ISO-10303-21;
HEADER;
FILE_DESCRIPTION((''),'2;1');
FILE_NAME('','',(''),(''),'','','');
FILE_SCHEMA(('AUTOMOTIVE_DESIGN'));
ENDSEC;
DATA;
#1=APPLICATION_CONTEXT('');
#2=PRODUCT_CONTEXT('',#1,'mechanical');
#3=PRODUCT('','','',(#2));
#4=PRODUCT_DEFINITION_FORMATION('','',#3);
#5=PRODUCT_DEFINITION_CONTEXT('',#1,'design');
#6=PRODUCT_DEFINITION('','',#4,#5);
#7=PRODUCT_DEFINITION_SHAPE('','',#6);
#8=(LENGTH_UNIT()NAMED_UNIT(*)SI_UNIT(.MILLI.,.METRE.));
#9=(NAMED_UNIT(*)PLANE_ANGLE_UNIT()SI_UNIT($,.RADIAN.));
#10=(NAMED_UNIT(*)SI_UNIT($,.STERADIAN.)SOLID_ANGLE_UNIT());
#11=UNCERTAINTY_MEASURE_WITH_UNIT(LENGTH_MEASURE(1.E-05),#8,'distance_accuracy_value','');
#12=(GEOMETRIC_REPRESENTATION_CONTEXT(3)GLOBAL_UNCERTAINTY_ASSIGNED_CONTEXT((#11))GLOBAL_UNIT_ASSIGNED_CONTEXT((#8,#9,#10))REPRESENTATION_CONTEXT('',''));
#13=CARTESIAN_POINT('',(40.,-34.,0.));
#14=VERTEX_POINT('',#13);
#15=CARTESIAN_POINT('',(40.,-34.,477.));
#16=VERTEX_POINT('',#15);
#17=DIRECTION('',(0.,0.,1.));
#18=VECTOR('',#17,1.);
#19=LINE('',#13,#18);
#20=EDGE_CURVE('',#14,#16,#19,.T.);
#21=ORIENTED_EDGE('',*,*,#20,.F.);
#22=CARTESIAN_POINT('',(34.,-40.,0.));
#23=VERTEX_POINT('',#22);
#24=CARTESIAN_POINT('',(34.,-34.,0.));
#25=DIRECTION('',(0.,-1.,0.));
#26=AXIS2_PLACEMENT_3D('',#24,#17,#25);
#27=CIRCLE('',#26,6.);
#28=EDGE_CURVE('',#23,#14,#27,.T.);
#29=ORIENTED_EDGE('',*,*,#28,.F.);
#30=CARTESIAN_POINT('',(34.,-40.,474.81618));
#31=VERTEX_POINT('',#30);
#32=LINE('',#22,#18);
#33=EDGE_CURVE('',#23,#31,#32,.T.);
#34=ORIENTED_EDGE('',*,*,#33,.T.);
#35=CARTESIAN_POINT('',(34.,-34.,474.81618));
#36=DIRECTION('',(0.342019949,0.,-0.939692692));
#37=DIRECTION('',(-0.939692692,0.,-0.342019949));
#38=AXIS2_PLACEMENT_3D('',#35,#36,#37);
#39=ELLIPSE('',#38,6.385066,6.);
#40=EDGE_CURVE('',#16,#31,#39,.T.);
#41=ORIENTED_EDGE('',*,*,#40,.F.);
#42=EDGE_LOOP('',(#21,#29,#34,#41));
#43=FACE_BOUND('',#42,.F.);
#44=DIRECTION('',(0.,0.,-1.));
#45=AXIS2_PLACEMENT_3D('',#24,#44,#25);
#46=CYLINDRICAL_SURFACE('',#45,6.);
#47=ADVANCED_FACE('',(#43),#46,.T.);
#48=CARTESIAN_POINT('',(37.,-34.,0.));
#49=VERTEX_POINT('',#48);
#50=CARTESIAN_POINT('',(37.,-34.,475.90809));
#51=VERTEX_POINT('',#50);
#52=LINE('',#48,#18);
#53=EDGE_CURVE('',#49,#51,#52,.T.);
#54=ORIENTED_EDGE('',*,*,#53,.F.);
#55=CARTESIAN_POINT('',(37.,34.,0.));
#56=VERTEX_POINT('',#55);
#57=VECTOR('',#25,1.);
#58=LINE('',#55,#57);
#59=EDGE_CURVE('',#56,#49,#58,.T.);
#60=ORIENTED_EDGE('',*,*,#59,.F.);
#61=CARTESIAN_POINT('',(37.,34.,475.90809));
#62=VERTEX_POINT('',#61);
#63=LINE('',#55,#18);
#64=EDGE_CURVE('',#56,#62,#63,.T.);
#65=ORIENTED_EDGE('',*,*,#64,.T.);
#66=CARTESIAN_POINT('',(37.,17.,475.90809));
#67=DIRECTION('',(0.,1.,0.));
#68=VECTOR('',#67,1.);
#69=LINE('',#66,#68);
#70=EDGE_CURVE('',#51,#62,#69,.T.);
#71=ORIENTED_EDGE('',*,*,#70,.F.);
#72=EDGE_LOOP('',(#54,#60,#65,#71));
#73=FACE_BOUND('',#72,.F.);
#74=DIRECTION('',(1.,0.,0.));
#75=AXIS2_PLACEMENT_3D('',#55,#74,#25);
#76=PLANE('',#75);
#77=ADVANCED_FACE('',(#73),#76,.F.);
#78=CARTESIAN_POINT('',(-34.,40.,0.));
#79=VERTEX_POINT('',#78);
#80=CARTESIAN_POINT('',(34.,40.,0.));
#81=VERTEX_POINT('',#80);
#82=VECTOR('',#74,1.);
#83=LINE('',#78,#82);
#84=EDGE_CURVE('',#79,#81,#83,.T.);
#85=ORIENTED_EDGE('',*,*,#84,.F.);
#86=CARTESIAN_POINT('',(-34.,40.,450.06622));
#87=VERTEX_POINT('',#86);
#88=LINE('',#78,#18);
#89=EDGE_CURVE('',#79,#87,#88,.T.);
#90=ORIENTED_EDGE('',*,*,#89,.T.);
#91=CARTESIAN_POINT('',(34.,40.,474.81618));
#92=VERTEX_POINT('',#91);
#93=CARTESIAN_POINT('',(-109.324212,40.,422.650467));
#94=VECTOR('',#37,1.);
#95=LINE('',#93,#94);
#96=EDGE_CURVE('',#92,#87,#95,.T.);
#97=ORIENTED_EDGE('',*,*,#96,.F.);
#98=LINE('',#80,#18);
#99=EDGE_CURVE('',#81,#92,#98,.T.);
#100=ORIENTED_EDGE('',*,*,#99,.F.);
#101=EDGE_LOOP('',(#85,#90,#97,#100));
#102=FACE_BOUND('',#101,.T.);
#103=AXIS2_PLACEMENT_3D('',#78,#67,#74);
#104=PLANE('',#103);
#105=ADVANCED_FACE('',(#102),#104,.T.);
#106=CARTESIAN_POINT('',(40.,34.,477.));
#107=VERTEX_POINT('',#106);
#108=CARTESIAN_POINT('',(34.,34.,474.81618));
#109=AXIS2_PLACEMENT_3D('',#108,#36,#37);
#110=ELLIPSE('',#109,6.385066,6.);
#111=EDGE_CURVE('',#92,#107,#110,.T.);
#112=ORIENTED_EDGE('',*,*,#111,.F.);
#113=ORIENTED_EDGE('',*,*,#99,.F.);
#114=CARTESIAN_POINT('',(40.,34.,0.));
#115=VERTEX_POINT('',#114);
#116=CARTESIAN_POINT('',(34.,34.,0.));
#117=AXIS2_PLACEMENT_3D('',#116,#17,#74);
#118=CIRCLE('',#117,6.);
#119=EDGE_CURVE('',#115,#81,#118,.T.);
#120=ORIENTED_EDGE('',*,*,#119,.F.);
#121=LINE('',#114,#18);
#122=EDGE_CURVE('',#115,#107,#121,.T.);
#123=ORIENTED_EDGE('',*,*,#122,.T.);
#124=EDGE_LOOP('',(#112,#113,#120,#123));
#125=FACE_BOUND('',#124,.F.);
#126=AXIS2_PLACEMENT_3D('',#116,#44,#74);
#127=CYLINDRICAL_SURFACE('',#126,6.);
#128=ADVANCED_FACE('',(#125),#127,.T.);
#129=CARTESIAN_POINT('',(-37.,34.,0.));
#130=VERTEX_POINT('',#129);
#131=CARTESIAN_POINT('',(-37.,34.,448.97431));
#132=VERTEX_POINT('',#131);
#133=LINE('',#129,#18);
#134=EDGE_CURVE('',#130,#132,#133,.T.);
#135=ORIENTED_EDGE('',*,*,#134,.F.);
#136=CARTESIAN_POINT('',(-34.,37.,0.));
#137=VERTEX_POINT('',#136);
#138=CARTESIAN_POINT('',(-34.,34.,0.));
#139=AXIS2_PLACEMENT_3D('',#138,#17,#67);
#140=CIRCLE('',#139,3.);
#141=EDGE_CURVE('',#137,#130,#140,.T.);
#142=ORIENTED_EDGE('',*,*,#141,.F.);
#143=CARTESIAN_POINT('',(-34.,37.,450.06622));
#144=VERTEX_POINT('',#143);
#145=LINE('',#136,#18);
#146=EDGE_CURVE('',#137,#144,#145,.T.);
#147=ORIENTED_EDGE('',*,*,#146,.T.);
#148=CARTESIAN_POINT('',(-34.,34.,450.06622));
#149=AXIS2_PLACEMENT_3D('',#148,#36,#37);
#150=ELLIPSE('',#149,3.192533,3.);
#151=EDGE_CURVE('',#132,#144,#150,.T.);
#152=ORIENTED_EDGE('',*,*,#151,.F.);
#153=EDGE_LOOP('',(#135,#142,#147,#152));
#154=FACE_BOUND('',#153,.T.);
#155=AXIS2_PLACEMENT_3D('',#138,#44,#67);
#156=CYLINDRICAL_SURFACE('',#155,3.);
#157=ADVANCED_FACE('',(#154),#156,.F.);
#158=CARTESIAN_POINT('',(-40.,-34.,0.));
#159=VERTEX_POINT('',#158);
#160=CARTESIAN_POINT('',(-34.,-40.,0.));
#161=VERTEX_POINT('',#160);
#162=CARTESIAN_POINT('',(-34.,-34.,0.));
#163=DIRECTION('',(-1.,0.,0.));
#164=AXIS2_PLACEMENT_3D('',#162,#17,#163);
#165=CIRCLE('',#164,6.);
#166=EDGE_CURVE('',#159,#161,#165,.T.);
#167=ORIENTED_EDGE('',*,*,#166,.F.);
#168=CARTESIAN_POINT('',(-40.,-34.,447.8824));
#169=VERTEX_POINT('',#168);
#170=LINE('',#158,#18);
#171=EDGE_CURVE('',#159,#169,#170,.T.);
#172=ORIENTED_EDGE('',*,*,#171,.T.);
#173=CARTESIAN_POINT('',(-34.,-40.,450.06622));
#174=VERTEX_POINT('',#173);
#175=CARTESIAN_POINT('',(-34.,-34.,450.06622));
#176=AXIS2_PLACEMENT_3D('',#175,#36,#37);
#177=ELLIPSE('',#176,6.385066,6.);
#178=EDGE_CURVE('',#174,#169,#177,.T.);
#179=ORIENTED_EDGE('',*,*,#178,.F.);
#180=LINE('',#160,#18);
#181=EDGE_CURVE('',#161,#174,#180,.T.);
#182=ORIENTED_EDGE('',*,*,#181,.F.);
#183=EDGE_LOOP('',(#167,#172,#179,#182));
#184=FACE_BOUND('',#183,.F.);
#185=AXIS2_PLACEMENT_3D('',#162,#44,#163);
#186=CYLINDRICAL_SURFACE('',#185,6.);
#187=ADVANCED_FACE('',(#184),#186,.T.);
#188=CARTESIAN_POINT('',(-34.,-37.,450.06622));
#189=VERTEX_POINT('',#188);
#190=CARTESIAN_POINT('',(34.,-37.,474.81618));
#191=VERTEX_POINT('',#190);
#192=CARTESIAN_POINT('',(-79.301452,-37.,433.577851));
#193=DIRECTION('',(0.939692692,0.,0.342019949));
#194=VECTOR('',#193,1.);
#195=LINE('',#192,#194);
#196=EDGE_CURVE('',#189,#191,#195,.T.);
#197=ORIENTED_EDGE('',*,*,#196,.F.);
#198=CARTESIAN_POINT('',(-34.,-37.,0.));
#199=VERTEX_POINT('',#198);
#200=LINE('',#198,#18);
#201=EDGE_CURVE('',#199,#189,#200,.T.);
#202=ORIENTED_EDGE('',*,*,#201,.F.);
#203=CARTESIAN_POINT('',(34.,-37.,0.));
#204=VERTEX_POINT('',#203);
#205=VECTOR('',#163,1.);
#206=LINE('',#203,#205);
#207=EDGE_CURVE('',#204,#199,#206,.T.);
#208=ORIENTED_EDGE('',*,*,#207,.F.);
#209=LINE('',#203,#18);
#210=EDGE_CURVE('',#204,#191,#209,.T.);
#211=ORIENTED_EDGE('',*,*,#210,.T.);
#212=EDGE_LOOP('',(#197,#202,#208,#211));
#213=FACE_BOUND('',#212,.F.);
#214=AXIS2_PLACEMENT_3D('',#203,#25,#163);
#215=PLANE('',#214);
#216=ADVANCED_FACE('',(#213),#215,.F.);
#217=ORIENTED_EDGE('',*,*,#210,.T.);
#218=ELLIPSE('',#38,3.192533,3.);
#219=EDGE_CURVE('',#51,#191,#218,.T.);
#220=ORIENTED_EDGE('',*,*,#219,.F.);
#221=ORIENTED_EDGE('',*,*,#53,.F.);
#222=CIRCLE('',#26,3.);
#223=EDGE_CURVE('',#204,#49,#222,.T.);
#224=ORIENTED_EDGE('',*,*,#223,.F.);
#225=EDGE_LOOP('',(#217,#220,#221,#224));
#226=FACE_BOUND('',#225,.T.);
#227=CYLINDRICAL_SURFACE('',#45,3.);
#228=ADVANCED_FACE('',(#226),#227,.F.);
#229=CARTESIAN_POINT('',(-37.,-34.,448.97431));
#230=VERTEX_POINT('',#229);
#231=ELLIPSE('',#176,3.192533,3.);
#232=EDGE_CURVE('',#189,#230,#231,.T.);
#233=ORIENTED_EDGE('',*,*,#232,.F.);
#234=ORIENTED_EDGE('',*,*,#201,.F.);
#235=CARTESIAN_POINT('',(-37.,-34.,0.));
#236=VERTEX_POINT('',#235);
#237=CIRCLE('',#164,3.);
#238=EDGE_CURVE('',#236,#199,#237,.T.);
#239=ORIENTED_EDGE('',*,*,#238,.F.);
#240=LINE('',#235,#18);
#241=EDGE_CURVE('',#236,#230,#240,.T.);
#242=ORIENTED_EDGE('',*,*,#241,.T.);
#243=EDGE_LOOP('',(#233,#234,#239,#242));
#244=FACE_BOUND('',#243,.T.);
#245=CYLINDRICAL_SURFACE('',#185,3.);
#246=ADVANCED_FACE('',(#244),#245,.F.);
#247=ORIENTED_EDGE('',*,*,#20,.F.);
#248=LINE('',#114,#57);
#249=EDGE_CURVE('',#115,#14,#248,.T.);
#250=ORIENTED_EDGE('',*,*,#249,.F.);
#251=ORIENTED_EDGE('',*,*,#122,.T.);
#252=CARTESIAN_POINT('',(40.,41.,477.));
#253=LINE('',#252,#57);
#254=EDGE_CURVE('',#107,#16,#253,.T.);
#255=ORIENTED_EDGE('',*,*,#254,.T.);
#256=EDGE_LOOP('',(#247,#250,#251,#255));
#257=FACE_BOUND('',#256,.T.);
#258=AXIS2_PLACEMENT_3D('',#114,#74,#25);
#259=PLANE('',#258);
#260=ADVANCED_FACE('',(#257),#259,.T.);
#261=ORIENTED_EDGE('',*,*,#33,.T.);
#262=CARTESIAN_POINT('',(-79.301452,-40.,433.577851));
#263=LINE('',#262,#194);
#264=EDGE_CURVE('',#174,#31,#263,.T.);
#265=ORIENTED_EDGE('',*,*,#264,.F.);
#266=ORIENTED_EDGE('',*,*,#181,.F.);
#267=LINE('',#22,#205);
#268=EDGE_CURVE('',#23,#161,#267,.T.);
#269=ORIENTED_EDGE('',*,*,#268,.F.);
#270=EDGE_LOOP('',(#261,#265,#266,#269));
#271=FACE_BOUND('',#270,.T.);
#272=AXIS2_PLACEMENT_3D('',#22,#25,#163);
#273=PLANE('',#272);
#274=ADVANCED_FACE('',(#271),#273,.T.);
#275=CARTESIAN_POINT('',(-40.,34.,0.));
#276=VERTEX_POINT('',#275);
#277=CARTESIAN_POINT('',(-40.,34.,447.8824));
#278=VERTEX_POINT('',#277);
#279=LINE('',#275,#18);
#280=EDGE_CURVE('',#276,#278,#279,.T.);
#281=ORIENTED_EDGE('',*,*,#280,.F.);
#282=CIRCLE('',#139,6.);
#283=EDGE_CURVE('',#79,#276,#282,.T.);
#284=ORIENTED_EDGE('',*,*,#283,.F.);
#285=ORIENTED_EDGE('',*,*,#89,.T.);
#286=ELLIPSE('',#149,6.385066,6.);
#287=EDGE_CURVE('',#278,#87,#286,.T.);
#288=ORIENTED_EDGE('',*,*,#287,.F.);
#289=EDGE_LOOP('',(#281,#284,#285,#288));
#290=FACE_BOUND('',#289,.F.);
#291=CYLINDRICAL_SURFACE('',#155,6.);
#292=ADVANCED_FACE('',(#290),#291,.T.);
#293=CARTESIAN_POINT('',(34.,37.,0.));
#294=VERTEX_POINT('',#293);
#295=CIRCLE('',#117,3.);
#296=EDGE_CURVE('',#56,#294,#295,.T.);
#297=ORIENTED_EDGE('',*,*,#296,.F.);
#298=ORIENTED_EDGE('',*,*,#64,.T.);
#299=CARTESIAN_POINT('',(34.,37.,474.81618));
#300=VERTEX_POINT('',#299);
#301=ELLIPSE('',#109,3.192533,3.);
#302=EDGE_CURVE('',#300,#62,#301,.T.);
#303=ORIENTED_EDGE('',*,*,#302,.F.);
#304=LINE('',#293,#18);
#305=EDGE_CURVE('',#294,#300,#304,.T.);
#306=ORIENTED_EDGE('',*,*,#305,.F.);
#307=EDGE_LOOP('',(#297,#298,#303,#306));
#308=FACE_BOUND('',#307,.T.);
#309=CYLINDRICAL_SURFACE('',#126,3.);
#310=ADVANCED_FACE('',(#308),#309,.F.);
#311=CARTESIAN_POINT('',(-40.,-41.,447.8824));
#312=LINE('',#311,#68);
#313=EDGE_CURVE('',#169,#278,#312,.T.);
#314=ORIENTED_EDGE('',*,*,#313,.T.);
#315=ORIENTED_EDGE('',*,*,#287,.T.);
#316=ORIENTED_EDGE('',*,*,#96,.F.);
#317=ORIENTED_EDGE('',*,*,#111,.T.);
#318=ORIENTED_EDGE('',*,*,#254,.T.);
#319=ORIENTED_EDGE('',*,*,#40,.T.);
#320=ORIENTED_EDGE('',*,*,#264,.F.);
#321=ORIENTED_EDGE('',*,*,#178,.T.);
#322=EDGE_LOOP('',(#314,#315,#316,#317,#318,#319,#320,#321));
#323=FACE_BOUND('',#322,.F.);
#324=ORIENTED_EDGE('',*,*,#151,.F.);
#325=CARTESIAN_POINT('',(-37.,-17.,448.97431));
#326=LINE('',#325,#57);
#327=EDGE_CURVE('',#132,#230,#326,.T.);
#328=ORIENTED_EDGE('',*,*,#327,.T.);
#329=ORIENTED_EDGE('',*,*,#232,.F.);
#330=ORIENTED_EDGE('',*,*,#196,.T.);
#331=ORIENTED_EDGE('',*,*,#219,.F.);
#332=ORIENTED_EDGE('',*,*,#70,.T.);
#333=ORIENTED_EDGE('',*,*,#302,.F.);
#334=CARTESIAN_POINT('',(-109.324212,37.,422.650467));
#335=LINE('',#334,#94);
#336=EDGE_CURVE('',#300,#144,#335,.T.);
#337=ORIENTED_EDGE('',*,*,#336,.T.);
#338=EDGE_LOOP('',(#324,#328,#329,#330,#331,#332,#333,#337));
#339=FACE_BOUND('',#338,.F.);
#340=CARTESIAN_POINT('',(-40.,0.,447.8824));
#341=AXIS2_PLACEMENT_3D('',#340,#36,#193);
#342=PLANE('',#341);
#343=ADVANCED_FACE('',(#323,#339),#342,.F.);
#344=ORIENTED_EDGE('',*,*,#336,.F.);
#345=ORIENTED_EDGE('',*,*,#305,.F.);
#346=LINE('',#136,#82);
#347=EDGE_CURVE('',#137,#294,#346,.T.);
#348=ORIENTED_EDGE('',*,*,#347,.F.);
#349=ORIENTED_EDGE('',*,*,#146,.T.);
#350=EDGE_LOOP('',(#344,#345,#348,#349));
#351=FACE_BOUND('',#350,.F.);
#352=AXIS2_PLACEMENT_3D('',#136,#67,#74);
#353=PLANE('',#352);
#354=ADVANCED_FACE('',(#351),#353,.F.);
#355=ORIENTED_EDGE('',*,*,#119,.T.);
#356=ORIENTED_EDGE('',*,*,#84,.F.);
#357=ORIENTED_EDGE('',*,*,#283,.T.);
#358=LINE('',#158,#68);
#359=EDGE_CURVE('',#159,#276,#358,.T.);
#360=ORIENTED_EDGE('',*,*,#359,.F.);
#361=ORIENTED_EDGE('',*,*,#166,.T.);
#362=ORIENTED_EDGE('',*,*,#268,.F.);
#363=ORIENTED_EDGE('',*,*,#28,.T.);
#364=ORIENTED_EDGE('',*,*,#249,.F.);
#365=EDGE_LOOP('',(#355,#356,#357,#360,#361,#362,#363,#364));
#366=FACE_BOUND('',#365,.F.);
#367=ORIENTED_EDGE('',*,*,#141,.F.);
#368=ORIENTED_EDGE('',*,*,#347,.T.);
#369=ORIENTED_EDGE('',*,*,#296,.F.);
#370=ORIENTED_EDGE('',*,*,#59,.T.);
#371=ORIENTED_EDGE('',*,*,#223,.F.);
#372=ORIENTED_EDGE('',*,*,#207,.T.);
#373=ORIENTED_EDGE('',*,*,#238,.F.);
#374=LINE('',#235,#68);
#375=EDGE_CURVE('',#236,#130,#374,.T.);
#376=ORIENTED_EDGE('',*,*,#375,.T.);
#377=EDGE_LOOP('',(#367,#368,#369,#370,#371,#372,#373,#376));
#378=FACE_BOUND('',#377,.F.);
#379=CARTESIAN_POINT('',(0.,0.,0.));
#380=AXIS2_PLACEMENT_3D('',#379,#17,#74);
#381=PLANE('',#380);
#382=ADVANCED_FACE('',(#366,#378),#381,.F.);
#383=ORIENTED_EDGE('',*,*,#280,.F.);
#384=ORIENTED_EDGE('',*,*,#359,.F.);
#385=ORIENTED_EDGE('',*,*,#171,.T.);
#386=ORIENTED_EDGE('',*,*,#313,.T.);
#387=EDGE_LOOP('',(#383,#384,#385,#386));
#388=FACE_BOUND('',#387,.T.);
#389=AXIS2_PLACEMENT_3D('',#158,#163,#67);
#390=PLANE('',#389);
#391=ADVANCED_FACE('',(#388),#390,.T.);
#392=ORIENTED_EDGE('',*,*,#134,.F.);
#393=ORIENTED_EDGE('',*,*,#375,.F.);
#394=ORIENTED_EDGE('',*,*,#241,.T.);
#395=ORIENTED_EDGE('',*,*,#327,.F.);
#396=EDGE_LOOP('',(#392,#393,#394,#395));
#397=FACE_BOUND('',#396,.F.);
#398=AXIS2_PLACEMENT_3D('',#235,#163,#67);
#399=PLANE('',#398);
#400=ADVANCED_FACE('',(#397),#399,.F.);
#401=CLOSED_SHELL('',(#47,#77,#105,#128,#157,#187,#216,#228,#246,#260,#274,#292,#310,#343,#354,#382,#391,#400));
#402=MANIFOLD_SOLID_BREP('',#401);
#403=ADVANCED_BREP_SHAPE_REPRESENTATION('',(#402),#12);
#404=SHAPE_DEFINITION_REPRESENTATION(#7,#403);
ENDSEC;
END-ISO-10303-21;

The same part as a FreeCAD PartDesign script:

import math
import FreeCAD as App
import Part
import Sketcher
from FreeCAD import Vector
Q = App.Units.Quantity


def add_polygon(sketch, points):
    """Adds a closed chain of lines whose ends are joined by coincident constraints."""
    first, n = sketch.GeometryCount, len(points)
    for a, b in zip(points, points[1:] + points[:1]):
        sketch.addGeometry(Part.LineSegment(App.Vector(*a, 0), App.Vector(*b, 0)), False)
    for i in range(n):
        sketch.addConstraint(Sketcher.Constraint("Coincident", first + i, 2, first + (i + 1) % n, 1))

doc = App.newDocument("Part")
body = doc.addObject("PartDesign::Body", "Body")

sketch1 = doc.addObject("Sketcher::SketchObject", "Sketch")
body.addObject(sketch1)
sketch1.AttachmentSupport = (doc.XY_Plane, [""])
sketch1.MapMode = "FlatFace"
sketch1.addGeometry(Part.LineSegment(Vector(-40, 34, 0), Vector(-40, -34, 0)), False)
sketch1.addGeometry(Part.ArcOfCircle(Part.Circle(Vector(-34, -34, 0), Vector(0, 0, 1), 6), math.radians(180), math.radians(270)), False)
sketch1.addGeometry(Part.LineSegment(Vector(-34, -40, 0), Vector(34, -40, 0)), False)
sketch1.addGeometry(Part.ArcOfCircle(Part.Circle(Vector(34, -34, 0), Vector(0, 0, 1), 6), math.radians(-90), math.radians(0)), False)
sketch1.addGeometry(Part.LineSegment(Vector(40, -34, 0), Vector(40, 34, 0)), False)
sketch1.addGeometry(Part.ArcOfCircle(Part.Circle(Vector(34, 34, 0), Vector(0, 0, 1), 6), math.radians(0), math.radians(90)), False)
sketch1.addGeometry(Part.LineSegment(Vector(34, 40, 0), Vector(-34, 40, 0)), False)
sketch1.addGeometry(Part.ArcOfCircle(Part.Circle(Vector(-34, 34, 0), Vector(0, 0, 1), 6), math.radians(90), math.radians(180)), False)
sketch1.addGeometry(Part.ArcOfCircle(Part.Circle(Vector(-34, 34, 0), Vector(0, 0, 1), 3), math.radians(90), math.radians(180)), False)
sketch1.addGeometry(Part.LineSegment(Vector(-34, 37, 0), Vector(34, 37, 0)), False)
sketch1.addGeometry(Part.ArcOfCircle(Part.Circle(Vector(34, 34, 0), Vector(0, 0, 1), 3), math.radians(0), math.radians(90)), False)
sketch1.addGeometry(Part.LineSegment(Vector(37, 34, 0), Vector(37, -34, 0)), False)
sketch1.addGeometry(Part.ArcOfCircle(Part.Circle(Vector(34, -34, 0), Vector(0, 0, 1), 3), math.radians(-90), math.radians(0)), False)
sketch1.addGeometry(Part.LineSegment(Vector(34, -37, 0), Vector(-34, -37, 0)), False)
sketch1.addGeometry(Part.ArcOfCircle(Part.Circle(Vector(-34, -34, 0), Vector(0, 0, 1), 3), math.radians(180), math.radians(270)), False)
sketch1.addGeometry(Part.LineSegment(Vector(-37, -34, 0), Vector(-37, 34, 0)), False)
sketch1.addConstraint(Sketcher.Constraint("Tangent", 0, 2, 1, 1))
sketch1.addConstraint(Sketcher.Constraint("Tangent", 1, 2, 2, 1))
sketch1.addConstraint(Sketcher.Constraint("Tangent", 2, 2, 3, 1))
sketch1.addConstraint(Sketcher.Constraint("Tangent", 3, 2, 4, 1))
sketch1.addConstraint(Sketcher.Constraint("Tangent", 4, 2, 5, 1))
sketch1.addConstraint(Sketcher.Constraint("Tangent", 5, 2, 6, 1))
sketch1.addConstraint(Sketcher.Constraint("Tangent", 6, 2, 7, 1))
sketch1.addConstraint(Sketcher.Constraint("Tangent", 7, 2, 0, 1))
sketch1.addConstraint(Sketcher.Constraint("Tangent", 8, 1, 9, 1))
sketch1.addConstraint(Sketcher.Constraint("Tangent", 9, 2, 10, 2))
sketch1.addConstraint(Sketcher.Constraint("Tangent", 10, 1, 11, 1))
sketch1.addConstraint(Sketcher.Constraint("Tangent", 11, 2, 12, 2))
sketch1.addConstraint(Sketcher.Constraint("Tangent", 12, 1, 13, 1))
sketch1.addConstraint(Sketcher.Constraint("Tangent", 13, 2, 14, 2))
sketch1.addConstraint(Sketcher.Constraint("Tangent", 14, 1, 15, 1))
sketch1.addConstraint(Sketcher.Constraint("Tangent", 15, 2, 8, 2))
sketch1.addConstraint(Sketcher.Constraint("Vertical", 0))
sketch1.addConstraint(Sketcher.Constraint("Horizontal", 2))
sketch1.addConstraint(Sketcher.Constraint("Vertical", 4))
sketch1.addConstraint(Sketcher.Constraint("Horizontal", 6))
sketch1.addConstraint(Sketcher.Constraint("Horizontal", 9))
sketch1.addConstraint(Sketcher.Constraint("Vertical", 11))
sketch1.addConstraint(Sketcher.Constraint("Horizontal", 13))
sketch1.addConstraint(Sketcher.Constraint("Vertical", 15))
sketch1.addConstraint(Sketcher.Constraint("Coincident", 8, 3, 7, 3))
sketch1.addConstraint(Sketcher.Constraint("Coincident", 10, 3, 5, 3))
sketch1.addConstraint(Sketcher.Constraint("Coincident", 12, 3, 3, 3))
sketch1.addConstraint(Sketcher.Constraint("Equal", 1, 3))
sketch1.addConstraint(Sketcher.Constraint("Equal", 3, 5))
sketch1.addConstraint(Sketcher.Constraint("Equal", 5, 7))
sketch1.addConstraint(Sketcher.Constraint("Equal", 12, 14))
sketch1.addConstraint(Sketcher.Constraint("Symmetric", 1, 3, 5, 3, -1, 1))
sketch1.addConstraint(Sketcher.Constraint("Equal", 13, 0))
sketch1.addConstraint(Sketcher.Constraint("Radius", 1, 6.0))
sketch1.addConstraint(Sketcher.Constraint("Radius", 8, 3.0))
sketch1.addConstraint(Sketcher.Constraint("DistanceX", 0, 2, -1, 1, 40.0))
pad1 = doc.addObject("PartDesign::Pad", "Pad")
body.addObject(pad1)
pad1.Profile = sketch1
pad1.Length = 1000

sketch2 = doc.addObject("Sketcher::SketchObject", "Sketch001")
body.addObject(sketch2)
sketch2.AttachmentSupport = (doc.XZ_Plane, [""])
sketch2.MapMode = "FlatFace"
add_polygon(sketch2, [(40, 477), (-40, 447.8824), (-40, 1000), (40, 1000)])
sketch2.addConstraint(Sketcher.Constraint("Vertical", 1))
sketch2.addConstraint(Sketcher.Constraint("Horizontal", 2))
sketch2.addConstraint(Sketcher.Constraint("Vertical", 3))
sketch2.addConstraint(Sketcher.Constraint("DistanceY", -1, 1, 3, 2, 477.0))
sketch2.addConstraint(Sketcher.Constraint("DistanceX", 2, 1, 2, 2, 80.0))
sketch2.addConstraint(Sketcher.Constraint("DistanceY", 3, 2, 3, 1, 523.0))
sketch2.addConstraint(Sketcher.Constraint("Angle", 0, Q("-160 deg")))
sketch2.addConstraint(Sketcher.Constraint("DistanceX", 0, 2, -1, 1, 40.0))
pocket1 = doc.addObject("PartDesign::Pocket", "Pocket")
body.addObject(pocket1)
pocket1.Profile = sketch2
pocket1.Type = "ThroughAll"
pocket1.Midplane = True

doc.recompute()
